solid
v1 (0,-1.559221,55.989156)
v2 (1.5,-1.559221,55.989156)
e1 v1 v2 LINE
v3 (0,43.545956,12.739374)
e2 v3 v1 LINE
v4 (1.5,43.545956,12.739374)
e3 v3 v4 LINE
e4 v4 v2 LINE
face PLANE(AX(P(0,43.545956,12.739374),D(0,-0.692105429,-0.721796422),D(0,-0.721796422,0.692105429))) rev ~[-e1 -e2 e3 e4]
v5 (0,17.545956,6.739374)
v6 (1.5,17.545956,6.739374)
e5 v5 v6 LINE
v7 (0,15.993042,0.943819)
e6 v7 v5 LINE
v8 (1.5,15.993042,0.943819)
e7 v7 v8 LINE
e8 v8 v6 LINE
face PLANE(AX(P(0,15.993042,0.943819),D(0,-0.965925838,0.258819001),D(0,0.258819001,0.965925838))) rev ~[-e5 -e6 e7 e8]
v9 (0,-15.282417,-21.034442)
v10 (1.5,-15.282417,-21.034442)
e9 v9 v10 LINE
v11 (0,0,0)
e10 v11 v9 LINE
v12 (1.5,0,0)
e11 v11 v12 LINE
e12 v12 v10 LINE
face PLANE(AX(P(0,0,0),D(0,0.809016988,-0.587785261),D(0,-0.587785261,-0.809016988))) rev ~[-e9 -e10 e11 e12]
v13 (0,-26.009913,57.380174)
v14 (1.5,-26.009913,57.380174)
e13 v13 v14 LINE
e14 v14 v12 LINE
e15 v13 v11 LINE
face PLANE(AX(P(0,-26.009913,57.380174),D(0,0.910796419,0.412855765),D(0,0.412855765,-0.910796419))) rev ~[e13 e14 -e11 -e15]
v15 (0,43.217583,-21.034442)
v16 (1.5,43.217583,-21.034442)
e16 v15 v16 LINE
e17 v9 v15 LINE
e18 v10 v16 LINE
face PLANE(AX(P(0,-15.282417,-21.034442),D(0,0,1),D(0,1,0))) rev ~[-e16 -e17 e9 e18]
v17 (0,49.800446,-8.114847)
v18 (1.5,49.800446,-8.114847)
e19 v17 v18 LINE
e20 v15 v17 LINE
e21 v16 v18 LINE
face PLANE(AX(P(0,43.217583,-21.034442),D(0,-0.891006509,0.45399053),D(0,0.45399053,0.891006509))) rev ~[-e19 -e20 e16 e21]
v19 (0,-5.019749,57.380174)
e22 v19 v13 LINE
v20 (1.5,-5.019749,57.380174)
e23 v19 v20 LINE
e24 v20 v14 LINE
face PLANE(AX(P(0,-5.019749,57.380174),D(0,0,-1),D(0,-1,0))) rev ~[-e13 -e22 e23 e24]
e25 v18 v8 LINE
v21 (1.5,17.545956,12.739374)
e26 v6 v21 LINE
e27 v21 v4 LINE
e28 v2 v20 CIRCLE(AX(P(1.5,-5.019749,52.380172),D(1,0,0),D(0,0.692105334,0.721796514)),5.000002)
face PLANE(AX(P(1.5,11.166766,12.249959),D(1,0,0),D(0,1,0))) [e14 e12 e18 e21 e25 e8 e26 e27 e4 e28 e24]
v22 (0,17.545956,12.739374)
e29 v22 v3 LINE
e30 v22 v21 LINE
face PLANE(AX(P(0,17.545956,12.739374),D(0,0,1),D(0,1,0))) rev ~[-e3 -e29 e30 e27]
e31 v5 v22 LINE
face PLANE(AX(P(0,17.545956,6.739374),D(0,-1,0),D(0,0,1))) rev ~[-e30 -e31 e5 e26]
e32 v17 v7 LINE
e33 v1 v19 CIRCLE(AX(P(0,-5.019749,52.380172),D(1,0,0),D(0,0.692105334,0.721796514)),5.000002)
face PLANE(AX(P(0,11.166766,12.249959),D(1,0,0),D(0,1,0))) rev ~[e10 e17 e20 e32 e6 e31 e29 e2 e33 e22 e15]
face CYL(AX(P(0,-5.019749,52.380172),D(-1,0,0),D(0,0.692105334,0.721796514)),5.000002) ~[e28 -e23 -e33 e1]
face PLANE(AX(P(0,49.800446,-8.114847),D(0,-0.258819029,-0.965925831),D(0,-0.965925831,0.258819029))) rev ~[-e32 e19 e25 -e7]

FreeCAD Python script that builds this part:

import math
import FreeCAD as App
import Part
import Sketcher
from FreeCAD import Vector
Q = App.Units.Quantity

doc = App.newDocument("Part")
body = doc.addObject("PartDesign::Body", "Body")

sketch1 = body.newObject("Sketcher::SketchObject", "Sketch")
sketch1.AttachmentSupport = (doc.getObject("YZ_Plane"), [""])
sketch1.MapMode = "FlatFace"
sketch1.addGeometry(Part.LineSegment(Vector(-26, 57.4, 0), Vector(0, 0, 0)), False)
sketch1.addGeometry(Part.LineSegment(Vector(0, 0, 0), Vector(-15.3, -21, 0)), False)
sketch1.addGeometry(Part.LineSegment(Vector(-15.3, -21, 0), Vector(43.2, -21, 0)), False)
sketch1.addGeometry(Part.LineSegment(Vector(43.2, -21, 0), Vector(49.8, -8.1, 0)), False)
sketch1.addGeometry(Part.LineSegment(Vector(49.8, -8.1, 0), Vector(16, 0.9, 0)), False)
sketch1.addGeometry(Part.LineSegment(Vector(16, 0.9, 0), Vector(17.5, 6.7, 0)), False)
sketch1.addGeometry(Part.LineSegment(Vector(17.5, 6.7, 0), Vector(17.5, 12.7, 0)), False)
sketch1.addGeometry(Part.LineSegment(Vector(17.5, 12.7, 0), Vector(43.5, 12.7, 0)), False)
sketch1.addGeometry(Part.LineSegment(Vector(43.5, 12.7, 0), Vector(-1.6, 56, 0)), False)
sketch1.addGeometry(Part.ArcOfCircle(Part.Circle(Vector(-5, 52.4, 0), Vector(0, 0, 1), 5), math.radians(46), math.radians(90)), False)
sketch1.addGeometry(Part.LineSegment(Vector(-5, 57.4, 0), Vector(-26, 57.4, 0)), False)
sketch1.addConstraint(Sketcher.Constraint("Coincident", 0, 2, 1, 1))
sketch1.addConstraint(Sketcher.Constraint("Coincident", 1, 2, 2, 1))
sketch1.addConstraint(Sketcher.Constraint("Coincident", 2, 2, 3, 1))
sketch1.addConstraint(Sketcher.Constraint("Coincident", 3, 2, 4, 1))
sketch1.addConstraint(Sketcher.Constraint("Coincident", 4, 2, 5, 1))
sketch1.addConstraint(Sketcher.Constraint("Coincident", 5, 2, 6, 1))
sketch1.addConstraint(Sketcher.Constraint("Coincident", 6, 2, 7, 1))
sketch1.addConstraint(Sketcher.Constraint("Coincident", 7, 2, 8, 1))
sketch1.addConstraint(Sketcher.Constraint("Tangent", 8, 2, 9, 1))
sketch1.addConstraint(Sketcher.Constraint("Tangent", 9, 2, 10, 1))
sketch1.addConstraint(Sketcher.Constraint("Coincident", 10, 2, 0, 1))
sketch1.addConstraint(Sketcher.Constraint("Horizontal", 2))
sketch1.addConstraint(Sketcher.Constraint("Vertical", 6))
sketch1.addConstraint(Sketcher.Constraint("Horizontal", 7))
sketch1.addConstraint(Sketcher.Constraint("Horizontal", 10))
sketch1.addConstraint(Sketcher.Constraint("Coincident", 0, 2, -1, 1))
sketch1.addConstraint(Sketcher.Constraint("Perpendicular", 4, 5))
sketch1.addConstraint(Sketcher.Constraint("DistanceX", 7, 1, 7, 2, Q("26 mm")))
sketch1.addConstraint(Sketcher.Constraint("DistanceY", 6, 1, 6, 2, Q("6 mm")))
sketch1.addConstraint(Sketcher.Constraint("Angle", 1, Q("-126.000001 deg")))
sketch1.addConstraint(Sketcher.Constraint("Angle", 3, Q("62.999998 deg")))
sketch1.addConstraint(Sketcher.Constraint("Angle", 4, Q("165.000001 deg")))
sketch1.addConstraint(Sketcher.Constraint("Distance", 0, Q("63 mm")))
sketch1.addConstraint(Sketcher.Constraint("Distance", 1, Q("26 mm")))
sketch1.addConstraint(Sketcher.Constraint("Distance", 4, Q("35 mm")))
sketch1.addConstraint(Sketcher.Constraint("Distance", 5, Q("6 mm")))
sketch1.addConstraint(Sketcher.Constraint("DistanceX", 2, 1, 2, 2, Q("58.5 mm")))
sketch1.addConstraint(Sketcher.Constraint("Distance", 3, Q("14.500001 mm")))
sketch1.addConstraint(Sketcher.Constraint("Radius", 9, Q("5.000002 mm")))
sketch1.addConstraint(Sketcher.Constraint("DistanceY", 6, 2, 9, 2, Q("44.6408 mm")))
sketch1.addConstraint(Sketcher.Constraint("DistanceX", 10, 2, 10, 1, Q("20.990164 mm")))
pad1 = body.newObject("PartDesign::Pad", "Pad")
pad1.Profile = sketch1
pad1.Length = 1.5

doc.recompute()
